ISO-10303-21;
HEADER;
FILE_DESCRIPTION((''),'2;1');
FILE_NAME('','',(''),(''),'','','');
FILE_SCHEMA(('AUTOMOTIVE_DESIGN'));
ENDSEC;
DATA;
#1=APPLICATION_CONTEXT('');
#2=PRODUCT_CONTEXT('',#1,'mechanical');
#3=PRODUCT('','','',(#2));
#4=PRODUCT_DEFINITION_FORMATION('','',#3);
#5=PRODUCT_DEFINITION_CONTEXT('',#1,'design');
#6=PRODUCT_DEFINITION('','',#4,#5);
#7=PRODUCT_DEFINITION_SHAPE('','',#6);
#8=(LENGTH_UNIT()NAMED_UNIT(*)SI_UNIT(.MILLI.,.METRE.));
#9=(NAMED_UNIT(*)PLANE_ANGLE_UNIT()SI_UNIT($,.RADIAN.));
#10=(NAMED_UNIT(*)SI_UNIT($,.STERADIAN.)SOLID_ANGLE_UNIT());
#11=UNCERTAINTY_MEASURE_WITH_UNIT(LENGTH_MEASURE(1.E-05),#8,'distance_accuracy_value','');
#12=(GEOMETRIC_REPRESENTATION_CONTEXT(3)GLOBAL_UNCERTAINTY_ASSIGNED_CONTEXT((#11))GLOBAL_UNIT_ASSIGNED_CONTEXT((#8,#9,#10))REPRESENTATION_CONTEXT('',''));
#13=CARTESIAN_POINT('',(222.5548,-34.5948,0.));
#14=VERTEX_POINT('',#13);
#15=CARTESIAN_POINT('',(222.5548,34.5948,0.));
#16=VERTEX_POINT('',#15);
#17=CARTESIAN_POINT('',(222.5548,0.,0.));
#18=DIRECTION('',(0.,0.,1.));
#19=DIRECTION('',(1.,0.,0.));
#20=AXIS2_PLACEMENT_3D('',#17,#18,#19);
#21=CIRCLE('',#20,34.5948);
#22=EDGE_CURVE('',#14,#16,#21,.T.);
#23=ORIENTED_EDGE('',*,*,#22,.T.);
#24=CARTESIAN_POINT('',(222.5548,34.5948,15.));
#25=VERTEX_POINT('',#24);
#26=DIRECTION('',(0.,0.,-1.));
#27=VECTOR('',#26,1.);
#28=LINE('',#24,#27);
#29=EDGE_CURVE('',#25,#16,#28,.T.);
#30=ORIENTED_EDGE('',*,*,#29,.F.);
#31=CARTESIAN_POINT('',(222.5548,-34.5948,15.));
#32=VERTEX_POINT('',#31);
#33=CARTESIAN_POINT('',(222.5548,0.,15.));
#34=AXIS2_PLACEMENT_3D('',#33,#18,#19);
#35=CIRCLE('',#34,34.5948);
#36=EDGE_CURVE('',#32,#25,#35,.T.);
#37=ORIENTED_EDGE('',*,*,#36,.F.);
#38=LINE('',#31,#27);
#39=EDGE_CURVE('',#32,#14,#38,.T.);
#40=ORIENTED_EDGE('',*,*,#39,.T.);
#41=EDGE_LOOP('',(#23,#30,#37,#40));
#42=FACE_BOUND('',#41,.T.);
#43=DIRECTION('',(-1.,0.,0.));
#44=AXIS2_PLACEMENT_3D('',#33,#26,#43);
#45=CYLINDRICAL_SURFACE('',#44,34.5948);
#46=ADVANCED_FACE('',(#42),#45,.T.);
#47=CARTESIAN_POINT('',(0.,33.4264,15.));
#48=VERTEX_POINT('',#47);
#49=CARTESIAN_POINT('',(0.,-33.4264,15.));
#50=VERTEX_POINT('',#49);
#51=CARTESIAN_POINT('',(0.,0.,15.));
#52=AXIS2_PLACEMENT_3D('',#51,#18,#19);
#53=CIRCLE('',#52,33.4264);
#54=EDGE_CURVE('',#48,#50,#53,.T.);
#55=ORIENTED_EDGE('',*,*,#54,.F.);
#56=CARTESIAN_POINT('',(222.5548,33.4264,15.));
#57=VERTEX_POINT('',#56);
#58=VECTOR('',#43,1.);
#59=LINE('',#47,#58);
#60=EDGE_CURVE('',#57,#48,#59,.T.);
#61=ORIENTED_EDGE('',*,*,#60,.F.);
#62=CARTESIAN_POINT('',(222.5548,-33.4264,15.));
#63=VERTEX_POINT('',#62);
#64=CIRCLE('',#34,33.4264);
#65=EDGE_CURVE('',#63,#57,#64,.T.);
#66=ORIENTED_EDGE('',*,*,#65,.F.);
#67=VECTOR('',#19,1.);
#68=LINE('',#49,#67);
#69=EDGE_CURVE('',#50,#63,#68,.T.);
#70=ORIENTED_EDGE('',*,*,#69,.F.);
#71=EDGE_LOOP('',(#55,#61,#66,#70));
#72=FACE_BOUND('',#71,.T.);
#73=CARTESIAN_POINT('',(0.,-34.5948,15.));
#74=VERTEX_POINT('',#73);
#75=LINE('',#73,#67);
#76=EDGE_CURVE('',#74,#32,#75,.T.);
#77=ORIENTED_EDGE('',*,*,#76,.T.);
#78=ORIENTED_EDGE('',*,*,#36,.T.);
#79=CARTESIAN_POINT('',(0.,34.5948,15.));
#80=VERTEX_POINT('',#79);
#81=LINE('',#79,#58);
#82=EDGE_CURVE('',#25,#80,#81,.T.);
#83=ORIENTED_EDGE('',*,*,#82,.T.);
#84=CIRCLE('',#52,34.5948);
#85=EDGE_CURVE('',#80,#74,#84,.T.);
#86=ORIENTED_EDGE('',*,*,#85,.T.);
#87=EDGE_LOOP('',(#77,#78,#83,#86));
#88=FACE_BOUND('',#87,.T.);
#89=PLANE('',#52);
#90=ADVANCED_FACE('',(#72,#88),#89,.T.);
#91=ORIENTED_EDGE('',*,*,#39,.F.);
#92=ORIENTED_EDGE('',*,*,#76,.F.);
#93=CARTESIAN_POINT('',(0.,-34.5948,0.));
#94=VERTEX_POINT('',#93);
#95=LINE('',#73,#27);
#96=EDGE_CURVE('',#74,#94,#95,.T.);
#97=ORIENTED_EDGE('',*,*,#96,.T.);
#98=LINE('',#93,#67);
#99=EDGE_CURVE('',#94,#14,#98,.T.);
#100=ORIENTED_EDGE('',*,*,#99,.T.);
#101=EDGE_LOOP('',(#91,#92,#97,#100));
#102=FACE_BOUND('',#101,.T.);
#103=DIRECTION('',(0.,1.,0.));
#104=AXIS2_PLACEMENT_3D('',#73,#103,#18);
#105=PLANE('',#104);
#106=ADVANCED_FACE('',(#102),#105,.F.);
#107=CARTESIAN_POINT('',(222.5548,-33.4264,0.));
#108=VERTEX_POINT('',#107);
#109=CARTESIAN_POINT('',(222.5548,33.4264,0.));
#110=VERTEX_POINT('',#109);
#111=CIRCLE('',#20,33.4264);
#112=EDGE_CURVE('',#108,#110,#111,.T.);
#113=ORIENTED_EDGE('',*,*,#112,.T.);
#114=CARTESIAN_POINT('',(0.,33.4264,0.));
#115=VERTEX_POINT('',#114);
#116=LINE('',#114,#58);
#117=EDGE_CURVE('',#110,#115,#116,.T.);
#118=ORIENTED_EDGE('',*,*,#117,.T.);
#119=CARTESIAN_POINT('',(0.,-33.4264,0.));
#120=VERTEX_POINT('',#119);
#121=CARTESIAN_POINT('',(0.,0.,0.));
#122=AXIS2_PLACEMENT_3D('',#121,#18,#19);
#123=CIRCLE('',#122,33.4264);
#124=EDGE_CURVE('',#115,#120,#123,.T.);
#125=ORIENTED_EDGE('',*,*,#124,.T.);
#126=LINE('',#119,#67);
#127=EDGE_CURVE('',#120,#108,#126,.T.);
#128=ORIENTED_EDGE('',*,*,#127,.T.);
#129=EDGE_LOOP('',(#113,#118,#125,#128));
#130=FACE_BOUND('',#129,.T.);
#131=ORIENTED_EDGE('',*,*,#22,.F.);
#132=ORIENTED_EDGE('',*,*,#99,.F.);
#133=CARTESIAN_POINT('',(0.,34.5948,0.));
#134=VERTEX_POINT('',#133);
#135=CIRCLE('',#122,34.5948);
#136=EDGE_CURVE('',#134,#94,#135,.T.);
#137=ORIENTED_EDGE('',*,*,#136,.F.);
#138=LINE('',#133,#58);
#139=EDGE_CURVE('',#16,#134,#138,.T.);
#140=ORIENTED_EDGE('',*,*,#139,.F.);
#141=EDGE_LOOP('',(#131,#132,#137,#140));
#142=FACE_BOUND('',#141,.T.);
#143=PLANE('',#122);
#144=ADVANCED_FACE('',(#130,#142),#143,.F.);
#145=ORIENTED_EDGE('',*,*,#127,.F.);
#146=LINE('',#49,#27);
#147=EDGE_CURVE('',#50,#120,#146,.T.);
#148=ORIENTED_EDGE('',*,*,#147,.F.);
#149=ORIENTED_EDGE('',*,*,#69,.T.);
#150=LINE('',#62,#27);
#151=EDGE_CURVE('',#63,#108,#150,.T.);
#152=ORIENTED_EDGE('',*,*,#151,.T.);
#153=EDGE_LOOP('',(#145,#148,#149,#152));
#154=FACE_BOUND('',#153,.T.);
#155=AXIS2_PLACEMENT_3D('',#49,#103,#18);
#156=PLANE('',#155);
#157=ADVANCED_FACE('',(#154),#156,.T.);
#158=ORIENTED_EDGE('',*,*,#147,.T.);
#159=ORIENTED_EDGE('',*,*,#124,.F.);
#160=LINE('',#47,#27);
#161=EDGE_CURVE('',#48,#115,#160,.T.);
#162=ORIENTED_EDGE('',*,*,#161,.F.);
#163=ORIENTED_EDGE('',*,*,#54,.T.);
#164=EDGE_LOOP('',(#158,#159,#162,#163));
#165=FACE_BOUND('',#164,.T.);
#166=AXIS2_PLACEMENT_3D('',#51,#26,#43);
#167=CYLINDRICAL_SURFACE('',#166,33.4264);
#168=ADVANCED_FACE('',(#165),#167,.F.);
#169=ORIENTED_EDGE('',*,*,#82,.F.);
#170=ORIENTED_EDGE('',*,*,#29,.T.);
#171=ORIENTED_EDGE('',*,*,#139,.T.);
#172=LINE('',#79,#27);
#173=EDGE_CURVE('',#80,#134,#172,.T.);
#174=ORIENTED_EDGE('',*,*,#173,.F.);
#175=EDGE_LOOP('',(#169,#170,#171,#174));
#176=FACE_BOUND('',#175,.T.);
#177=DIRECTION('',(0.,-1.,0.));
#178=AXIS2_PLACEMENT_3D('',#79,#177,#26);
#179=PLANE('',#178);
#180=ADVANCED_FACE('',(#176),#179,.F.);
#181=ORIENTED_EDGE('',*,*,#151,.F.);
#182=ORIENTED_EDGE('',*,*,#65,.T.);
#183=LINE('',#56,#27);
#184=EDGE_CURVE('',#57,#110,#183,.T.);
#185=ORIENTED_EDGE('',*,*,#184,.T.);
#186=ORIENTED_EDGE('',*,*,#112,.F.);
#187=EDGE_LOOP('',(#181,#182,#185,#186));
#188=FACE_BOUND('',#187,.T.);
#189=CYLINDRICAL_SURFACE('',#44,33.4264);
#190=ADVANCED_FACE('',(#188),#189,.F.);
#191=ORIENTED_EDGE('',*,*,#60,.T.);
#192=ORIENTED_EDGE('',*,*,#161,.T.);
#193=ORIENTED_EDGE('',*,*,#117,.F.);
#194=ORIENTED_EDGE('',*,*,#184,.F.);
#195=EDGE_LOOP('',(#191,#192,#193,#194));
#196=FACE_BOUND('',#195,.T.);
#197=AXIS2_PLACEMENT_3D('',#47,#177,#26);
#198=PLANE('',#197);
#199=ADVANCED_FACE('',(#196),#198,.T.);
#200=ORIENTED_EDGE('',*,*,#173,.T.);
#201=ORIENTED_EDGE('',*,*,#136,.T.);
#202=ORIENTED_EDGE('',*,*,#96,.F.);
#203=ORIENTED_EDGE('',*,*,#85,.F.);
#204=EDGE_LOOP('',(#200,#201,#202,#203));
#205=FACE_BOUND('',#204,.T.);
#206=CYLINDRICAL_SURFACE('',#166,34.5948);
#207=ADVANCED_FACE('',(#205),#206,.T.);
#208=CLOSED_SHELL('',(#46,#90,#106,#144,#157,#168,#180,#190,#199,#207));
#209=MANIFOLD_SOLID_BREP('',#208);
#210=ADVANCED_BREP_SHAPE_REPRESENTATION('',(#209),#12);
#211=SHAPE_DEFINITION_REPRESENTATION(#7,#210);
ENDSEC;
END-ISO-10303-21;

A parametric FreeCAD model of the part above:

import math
import FreeCAD as App
import Part
import Sketcher

V = App.Vector
Q = App.Units.Quantity

doc = App.newDocument("Part")
body = doc.addObject("PartDesign::Body", "Body")

# Sketch on XY plane
sketch1 = body.newObject("Sketcher::SketchObject", "Sketch")
sketch1.AttachmentSupport = (doc.getObject("XY_Plane"), [""])
sketch1.MapMode = "FlatFace"
sketch1.addGeometry([
    Part.LineSegment(V(223, 35, 0), V(0, 35, 0)),  # 0
    Part.ArcOfCircle(Part.Circle(V(0, 0, 0), V(0, 0, 1), 35), math.radians(90), math.radians(270)),  # 1
    Part.LineSegment(V(0, -35, 0), V(223, -35, 0)),  # 2
    Part.ArcOfCircle(Part.Circle(V(223, 0, 0), V(0, 0, 1), 35), math.radians(-90), math.radians(90)),  # 3
    Part.LineSegment(V(0, 33, 0), V(223, 33, 0)),  # 4
    Part.ArcOfCircle(Part.Circle(V(223, 0, 0), V(0, 0, 1), 33), math.radians(-90), math.radians(90)),  # 5
    Part.LineSegment(V(223, -33, 0), V(0, -33, 0)),  # 6
    Part.ArcOfCircle(Part.Circle(V(0, 0, 0), V(0, 0, 1), 33), math.radians(90), math.radians(270)),  # 7
], False)
sketch1.addConstraint([
    Sketcher.Constraint("Tangent", 0, 2, 1, 1),
    Sketcher.Constraint("Tangent", 1, 2, 2, 1),
    Sketcher.Constraint("Tangent", 2, 2, 3, 1),
    Sketcher.Constraint("Tangent", 3, 2, 0, 1),
    Sketcher.Constraint("Tangent", 4, 2, 5, 2),
    Sketcher.Constraint("Tangent", 5, 1, 6, 1),
    Sketcher.Constraint("Tangent", 6, 2, 7, 2),
    Sketcher.Constraint("Tangent", 7, 1, 4, 1),
    Sketcher.Constraint("Horizontal", 0),
    Sketcher.Constraint("Horizontal", 2),
    Sketcher.Constraint("Horizontal", 4),
    Sketcher.Constraint("Horizontal", 6),
    Sketcher.Constraint("Coincident", 1, 3, -1, 1),
    Sketcher.Constraint("Coincident", 7, 3, -1, 1),
    Sketcher.Constraint("Vertical", 5, 3, 2, 2),
    Sketcher.Constraint("Radius", 1, Q("1.362 in")),
    Sketcher.Constraint("Radius", 5, Q("1.316 in")),
    Sketcher.Constraint("DistanceX", 0, 2, 0, 1, Q("8.762 in")),
])
pad1 = body.newObject("PartDesign::Pad", "Pad")
pad1.Profile = sketch1
pad1.Length = 15

doc.recompute()
